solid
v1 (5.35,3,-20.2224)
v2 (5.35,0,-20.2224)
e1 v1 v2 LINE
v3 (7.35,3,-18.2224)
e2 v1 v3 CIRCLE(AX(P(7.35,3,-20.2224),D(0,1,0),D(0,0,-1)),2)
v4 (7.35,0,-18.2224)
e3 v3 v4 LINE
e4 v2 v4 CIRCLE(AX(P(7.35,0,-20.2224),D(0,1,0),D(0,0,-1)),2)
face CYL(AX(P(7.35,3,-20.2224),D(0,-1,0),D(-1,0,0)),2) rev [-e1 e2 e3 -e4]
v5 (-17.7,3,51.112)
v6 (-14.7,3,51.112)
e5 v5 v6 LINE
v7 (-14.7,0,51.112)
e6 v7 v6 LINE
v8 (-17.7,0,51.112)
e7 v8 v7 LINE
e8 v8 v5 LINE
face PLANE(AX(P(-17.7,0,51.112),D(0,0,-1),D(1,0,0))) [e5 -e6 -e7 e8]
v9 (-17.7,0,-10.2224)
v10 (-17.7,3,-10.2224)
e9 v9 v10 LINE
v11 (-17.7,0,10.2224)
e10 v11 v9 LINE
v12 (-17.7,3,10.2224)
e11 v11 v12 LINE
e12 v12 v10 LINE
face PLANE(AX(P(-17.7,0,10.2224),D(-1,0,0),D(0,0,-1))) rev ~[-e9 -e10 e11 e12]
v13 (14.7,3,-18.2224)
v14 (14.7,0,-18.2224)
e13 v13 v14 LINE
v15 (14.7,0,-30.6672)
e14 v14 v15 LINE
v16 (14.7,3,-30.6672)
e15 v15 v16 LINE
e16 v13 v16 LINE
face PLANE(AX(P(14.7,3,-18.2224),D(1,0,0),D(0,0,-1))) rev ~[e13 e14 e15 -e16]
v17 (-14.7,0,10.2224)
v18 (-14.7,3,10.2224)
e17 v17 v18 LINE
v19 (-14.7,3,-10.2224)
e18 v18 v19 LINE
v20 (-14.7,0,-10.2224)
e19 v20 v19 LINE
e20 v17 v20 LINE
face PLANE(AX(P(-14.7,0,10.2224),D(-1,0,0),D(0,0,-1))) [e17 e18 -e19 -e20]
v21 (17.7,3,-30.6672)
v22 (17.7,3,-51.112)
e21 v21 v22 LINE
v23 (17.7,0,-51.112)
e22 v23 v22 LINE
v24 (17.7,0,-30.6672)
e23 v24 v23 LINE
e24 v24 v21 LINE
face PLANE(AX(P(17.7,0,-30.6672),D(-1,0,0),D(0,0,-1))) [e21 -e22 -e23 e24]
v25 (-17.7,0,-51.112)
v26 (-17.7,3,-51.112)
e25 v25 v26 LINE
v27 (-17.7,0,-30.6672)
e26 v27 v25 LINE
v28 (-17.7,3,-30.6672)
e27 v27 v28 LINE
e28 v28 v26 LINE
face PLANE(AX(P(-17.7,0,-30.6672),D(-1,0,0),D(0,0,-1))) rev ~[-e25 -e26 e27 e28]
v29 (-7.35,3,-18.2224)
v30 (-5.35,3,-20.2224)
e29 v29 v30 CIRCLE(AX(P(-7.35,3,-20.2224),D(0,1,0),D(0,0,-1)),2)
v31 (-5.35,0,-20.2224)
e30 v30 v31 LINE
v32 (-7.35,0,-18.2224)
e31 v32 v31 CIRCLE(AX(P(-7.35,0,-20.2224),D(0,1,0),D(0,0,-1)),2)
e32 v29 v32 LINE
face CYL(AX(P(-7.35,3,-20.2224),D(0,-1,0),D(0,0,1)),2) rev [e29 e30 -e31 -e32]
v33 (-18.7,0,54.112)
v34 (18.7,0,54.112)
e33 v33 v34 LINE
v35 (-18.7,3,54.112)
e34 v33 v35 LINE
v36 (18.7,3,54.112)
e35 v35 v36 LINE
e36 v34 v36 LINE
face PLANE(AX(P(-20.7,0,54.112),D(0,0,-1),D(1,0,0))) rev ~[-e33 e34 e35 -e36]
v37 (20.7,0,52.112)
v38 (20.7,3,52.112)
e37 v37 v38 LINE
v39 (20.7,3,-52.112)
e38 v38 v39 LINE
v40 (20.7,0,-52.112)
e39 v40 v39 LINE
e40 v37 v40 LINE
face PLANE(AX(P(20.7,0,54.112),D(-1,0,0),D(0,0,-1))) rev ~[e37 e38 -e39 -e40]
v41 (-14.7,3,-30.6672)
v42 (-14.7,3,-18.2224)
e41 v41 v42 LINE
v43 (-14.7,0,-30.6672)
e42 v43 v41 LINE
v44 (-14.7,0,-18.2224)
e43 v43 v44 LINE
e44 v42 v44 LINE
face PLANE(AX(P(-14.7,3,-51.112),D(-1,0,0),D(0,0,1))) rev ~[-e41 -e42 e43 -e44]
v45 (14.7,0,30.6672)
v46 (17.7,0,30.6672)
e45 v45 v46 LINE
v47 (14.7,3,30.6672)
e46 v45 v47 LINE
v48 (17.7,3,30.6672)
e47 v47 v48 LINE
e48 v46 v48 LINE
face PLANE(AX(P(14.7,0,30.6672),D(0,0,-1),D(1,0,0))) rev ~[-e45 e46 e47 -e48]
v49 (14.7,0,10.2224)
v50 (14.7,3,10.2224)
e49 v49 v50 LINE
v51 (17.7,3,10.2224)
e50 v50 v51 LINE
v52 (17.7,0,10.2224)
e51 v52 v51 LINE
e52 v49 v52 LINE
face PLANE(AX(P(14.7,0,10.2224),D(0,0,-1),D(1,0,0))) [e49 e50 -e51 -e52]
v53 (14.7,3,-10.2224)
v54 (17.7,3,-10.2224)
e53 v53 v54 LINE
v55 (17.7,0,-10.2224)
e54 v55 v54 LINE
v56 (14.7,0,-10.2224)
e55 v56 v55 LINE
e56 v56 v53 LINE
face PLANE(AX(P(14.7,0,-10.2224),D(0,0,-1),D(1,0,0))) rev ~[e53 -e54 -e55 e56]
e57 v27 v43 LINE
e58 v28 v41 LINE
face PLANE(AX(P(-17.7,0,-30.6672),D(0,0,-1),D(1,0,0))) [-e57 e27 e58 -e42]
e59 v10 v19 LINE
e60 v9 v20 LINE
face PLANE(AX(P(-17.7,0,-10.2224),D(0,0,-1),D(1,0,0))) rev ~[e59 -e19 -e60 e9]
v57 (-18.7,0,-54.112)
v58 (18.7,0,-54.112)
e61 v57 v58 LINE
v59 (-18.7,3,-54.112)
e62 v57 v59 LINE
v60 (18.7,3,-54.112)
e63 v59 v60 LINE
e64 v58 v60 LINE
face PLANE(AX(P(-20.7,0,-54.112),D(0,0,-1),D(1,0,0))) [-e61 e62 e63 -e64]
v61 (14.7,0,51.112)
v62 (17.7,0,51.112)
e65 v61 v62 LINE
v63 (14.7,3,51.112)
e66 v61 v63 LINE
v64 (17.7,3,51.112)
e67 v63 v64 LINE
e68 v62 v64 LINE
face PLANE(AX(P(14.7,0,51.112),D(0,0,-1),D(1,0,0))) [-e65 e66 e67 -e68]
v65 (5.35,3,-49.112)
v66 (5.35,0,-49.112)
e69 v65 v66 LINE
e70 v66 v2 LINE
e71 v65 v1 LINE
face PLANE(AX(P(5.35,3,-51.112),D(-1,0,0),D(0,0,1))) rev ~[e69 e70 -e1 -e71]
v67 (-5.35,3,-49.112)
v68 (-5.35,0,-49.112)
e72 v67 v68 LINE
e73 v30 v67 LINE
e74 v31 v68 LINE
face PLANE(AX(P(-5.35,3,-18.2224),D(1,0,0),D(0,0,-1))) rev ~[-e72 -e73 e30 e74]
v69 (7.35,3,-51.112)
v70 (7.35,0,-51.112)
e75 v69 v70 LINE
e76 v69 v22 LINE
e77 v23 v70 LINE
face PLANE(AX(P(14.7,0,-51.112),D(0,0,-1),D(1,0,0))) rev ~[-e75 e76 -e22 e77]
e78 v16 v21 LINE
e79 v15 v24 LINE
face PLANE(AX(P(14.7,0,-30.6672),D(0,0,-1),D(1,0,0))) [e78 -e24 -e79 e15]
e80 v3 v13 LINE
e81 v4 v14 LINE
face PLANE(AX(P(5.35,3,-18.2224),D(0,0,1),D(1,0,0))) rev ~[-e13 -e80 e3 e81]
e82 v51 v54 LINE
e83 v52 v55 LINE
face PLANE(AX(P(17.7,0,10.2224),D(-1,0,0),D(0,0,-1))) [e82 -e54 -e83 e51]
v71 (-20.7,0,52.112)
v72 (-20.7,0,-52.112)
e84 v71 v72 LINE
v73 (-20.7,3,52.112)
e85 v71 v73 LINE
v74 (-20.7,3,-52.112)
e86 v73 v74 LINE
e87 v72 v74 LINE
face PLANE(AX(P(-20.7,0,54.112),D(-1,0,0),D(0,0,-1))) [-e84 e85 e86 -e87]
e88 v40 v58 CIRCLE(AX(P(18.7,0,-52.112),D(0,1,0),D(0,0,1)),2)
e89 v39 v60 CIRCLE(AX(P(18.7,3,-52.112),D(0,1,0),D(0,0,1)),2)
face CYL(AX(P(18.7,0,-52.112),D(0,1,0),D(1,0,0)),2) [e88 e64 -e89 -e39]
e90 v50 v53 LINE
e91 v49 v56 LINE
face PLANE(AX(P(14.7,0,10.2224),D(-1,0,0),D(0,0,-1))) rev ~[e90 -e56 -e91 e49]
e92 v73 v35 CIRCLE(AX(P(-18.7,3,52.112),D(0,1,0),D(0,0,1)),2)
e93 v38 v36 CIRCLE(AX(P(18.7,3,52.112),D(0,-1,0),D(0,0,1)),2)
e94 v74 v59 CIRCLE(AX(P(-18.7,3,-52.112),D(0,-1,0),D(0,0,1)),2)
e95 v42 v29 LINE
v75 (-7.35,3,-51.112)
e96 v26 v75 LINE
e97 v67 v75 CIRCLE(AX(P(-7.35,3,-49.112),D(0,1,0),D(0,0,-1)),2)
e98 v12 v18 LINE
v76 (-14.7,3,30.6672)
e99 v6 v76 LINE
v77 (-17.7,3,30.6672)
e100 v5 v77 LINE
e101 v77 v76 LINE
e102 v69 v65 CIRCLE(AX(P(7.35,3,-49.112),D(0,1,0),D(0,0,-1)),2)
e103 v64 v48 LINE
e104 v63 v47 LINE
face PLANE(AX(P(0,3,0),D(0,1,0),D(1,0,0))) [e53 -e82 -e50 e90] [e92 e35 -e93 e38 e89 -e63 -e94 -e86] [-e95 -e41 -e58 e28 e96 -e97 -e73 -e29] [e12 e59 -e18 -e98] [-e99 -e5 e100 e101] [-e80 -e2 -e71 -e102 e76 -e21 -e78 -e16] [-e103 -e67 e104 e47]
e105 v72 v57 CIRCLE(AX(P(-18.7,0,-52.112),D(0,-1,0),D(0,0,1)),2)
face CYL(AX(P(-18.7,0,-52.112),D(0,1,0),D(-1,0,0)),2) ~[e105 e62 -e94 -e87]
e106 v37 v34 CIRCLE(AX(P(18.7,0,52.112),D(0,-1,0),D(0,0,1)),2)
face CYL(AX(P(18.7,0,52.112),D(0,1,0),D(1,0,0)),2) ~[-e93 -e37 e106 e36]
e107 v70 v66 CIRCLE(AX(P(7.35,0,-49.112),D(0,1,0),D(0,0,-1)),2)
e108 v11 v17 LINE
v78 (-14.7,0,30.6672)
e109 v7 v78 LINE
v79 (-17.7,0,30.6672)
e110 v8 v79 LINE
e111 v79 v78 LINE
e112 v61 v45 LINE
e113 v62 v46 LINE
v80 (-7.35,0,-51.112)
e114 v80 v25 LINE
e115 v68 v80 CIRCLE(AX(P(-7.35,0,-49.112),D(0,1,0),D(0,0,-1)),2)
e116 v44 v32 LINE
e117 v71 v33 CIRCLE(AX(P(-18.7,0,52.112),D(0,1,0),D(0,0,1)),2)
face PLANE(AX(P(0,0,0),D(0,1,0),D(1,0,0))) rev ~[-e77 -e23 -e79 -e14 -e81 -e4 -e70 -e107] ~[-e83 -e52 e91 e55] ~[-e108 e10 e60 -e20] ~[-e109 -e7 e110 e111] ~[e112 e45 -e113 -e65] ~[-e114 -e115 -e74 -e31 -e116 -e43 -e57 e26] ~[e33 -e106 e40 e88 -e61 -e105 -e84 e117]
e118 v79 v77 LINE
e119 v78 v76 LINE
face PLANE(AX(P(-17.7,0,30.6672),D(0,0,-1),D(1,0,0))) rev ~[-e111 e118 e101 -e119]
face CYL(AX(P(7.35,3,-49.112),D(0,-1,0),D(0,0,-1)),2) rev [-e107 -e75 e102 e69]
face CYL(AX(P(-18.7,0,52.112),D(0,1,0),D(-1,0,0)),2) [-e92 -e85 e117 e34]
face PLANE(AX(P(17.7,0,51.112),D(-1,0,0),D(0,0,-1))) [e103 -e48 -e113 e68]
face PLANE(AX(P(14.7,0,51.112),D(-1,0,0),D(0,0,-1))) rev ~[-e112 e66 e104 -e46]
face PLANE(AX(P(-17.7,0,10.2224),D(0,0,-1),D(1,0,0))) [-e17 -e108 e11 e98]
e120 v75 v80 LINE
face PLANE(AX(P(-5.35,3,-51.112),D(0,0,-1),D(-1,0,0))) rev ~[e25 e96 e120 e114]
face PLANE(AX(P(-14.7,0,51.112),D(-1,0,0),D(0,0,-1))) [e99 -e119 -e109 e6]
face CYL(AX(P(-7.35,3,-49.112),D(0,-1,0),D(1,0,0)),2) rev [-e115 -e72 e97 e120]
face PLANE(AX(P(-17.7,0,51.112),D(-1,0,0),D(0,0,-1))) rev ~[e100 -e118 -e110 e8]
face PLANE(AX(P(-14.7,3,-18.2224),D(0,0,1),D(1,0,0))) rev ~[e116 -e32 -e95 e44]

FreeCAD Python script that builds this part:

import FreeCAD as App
import Part
import Sketcher

V = App.Vector
Q = App.Units.Quantity


def edges_at(feature, points):
    """Names of the edges that pass closest to the given points."""
    edges = feature.Shape.Edges
    near = lambda p: min(range(len(edges)), key=lambda i: edges[i].distToShape(Part.Vertex(*p))[0])
    return sorted({f"Edge{near(p) + 1}" for p in points})

doc = App.newDocument("Part")
params = doc.addObject("Spreadsheet::Sheet", "Params")
for row, (alias, value) in enumerate([
    ("sketch1_width", "3 mm"),
    ("sketch1_width2", "41.4 mm"),
    ("pad1_length", "3 mm"),
    ("sketch2_width", "9.35 mm"),
    ("fillet_radius", "2 mm"),
], start=1):
    params.set(f"A{row}", alias)
    params.set(f"B{row}", "=" + value)
    params.setAlias(f"B{row}", alias)

body = doc.addObject("PartDesign::Body", "Body")

# Sketch on XZ plane
sketch1 = body.newObject("Sketcher::SketchObject", "Sketch")
sketch1.AttachmentSupport = (doc.getObject("XZ_Plane"), [""])
sketch1.MapMode = "FlatFace"
sketch1.addGeometry([
    Part.LineSegment(V(-20.7, -54.1, 0), V(-20.7, 54.1, 0)),  # 0
    Part.LineSegment(V(-20.7, 54.1, 0), V(20.7, 54.1, 0)),  # 1
    Part.LineSegment(V(20.7, 54.1, 0), V(20.7, -54.1, 0)),  # 2
    Part.LineSegment(V(20.7, -54.1, 0), V(-20.7, -54.1, 0)),  # 3
    Part.LineSegment(V(-14.7, 51.1, 0), V(-17.7, 51.1, 0)),  # 4
    Part.LineSegment(V(-17.7, 51.1, 0), V(-17.7, 30.7, 0)),  # 5
    Part.LineSegment(V(-17.7, 30.7, 0), V(-14.7, 30.7, 0)),  # 6
    Part.LineSegment(V(-14.7, 30.7, 0), V(-14.7, 51.1, 0)),  # 7
    Part.LineSegment(V(17.7, 51.1, 0), V(14.7, 51.1, 0)),  # 8
    Part.LineSegment(V(14.7, 51.1, 0), V(14.7, 30.7, 0)),  # 9
    Part.LineSegment(V(14.7, 30.7, 0), V(17.7, 30.7, 0)),  # 10
    Part.LineSegment(V(17.7, 30.7, 0), V(17.7, 51.1, 0)),  # 11
    Part.LineSegment(V(-14.7, 10.2, 0), V(-17.7, 10.2, 0)),  # 12
    Part.LineSegment(V(-17.7, 10.2, 0), V(-17.7, -10.2, 0)),  # 13
    Part.LineSegment(V(-17.7, -10.2, 0), V(-14.7, -10.2, 0)),  # 14
    Part.LineSegment(V(-14.7, -10.2, 0), V(-14.7, 10.2, 0)),  # 15
    Part.LineSegment(V(-14.7, -30.7, 0), V(-17.7, -30.7, 0)),  # 16
    Part.LineSegment(V(-17.7, -30.7, 0), V(-17.7, -51.1, 0)),  # 17
    Part.LineSegment(V(-17.7, -51.1, 0), V(-14.7, -51.1, 0)),  # 18
    Part.LineSegment(V(-14.7, -51.1, 0), V(-14.7, -30.7, 0)),  # 19
    Part.LineSegment(V(17.7, 10.2, 0), V(14.7, 10.2, 0)),  # 20
    Part.LineSegment(V(14.7, 10.2, 0), V(14.7, -10.2, 0)),  # 21
    Part.LineSegment(V(14.7, -10.2, 0), V(17.7, -10.2, 0)),  # 22
    Part.LineSegment(V(17.7, -10.2, 0), V(17.7, 10.2, 0)),  # 23
    Part.LineSegment(V(17.7, -30.7, 0), V(14.7, -30.7, 0)),  # 24
    Part.LineSegment(V(14.7, -30.7, 0), V(14.7, -51.1, 0)),  # 25
    Part.LineSegment(V(14.7, -51.1, 0), V(17.7, -51.1, 0)),  # 26
    Part.LineSegment(V(17.7, -51.1, 0), V(17.7, -30.7, 0)),  # 27
], False)
sketch1.addConstraint([
    Sketcher.Constraint("Coincident", 0, 2, 1, 1),
    Sketcher.Constraint("Coincident", 1, 2, 2, 1),
    Sketcher.Constraint("Coincident", 2, 2, 3, 1),
    Sketcher.Constraint("Coincident", 3, 2, 0, 1),
    Sketcher.Constraint("Coincident", 4, 2, 5, 1),
    Sketcher.Constraint("Coincident", 5, 2, 6, 1),
    Sketcher.Constraint("Coincident", 6, 2, 7, 1),
    Sketcher.Constraint("Coincident", 7, 2, 4, 1),
    Sketcher.Constraint("Coincident", 8, 2, 9, 1),
    Sketcher.Constraint("Coincident", 9, 2, 10, 1),
    Sketcher.Constraint("Coincident", 10, 2, 11, 1),
    Sketcher.Constraint("Coincident", 11, 2, 8, 1),
    Sketcher.Constraint("Coincident", 12, 2, 13, 1),
    Sketcher.Constraint("Coincident", 13, 2, 14, 1),
    Sketcher.Constraint("Coincident", 14, 2, 15, 1),
    Sketcher.Constraint("Coincident", 15, 2, 12, 1),
    Sketcher.Constraint("Coincident", 16, 2, 17, 1),
    Sketcher.Constraint("Coincident", 17, 2, 18, 1),
    Sketcher.Constraint("Coincident", 18, 2, 19, 1),
    Sketcher.Constraint("Coincident", 19, 2, 16, 1),
    Sketcher.Constraint("Coincident", 20, 2, 21, 1),
    Sketcher.Constraint("Coincident", 21, 2, 22, 1),
    Sketcher.Constraint("Coincident", 22, 2, 23, 1),
    Sketcher.Constraint("Coincident", 23, 2, 20, 1),
    Sketcher.Constraint("Coincident", 24, 2, 25, 1),
    Sketcher.Constraint("Coincident", 25, 2, 26, 1),
    Sketcher.Constraint("Coincident", 26, 2, 27, 1),
    Sketcher.Constraint("Coincident", 27, 2, 24, 1),
    Sketcher.Constraint("Vertical", 0),
    Sketcher.Constraint("Horizontal", 1),
    Sketcher.Constraint("Vertical", 2),
    Sketcher.Constraint("Horizontal", 3),
    Sketcher.Constraint("Horizontal", 4),
    Sketcher.Constraint("Vertical", 5),
    Sketcher.Constraint("Horizontal", 6),
    Sketcher.Constraint("Vertical", 7),
    Sketcher.Constraint("Horizontal", 8),
    Sketcher.Constraint("Vertical", 9),
    Sketcher.Constraint("Horizontal", 10),
    Sketcher.Constraint("Vertical", 11),
    Sketcher.Constraint("Horizontal", 12),
    Sketcher.Constraint("Vertical", 13),
    Sketcher.Constraint("Horizontal", 14),
    Sketcher.Constraint("Vertical", 15),
    Sketcher.Constraint("Horizontal", 16),
    Sketcher.Constraint("Vertical", 17),
    Sketcher.Constraint("Horizontal", 18),
    Sketcher.Constraint("Vertical", 19),
    Sketcher.Constraint("Horizontal", 20),
    Sketcher.Constraint("Vertical", 21),
    Sketcher.Constraint("Horizontal", 22),
    Sketcher.Constraint("Vertical", 23),
    Sketcher.Constraint("Horizontal", 24),
    Sketcher.Constraint("Vertical", 25),
    Sketcher.Constraint("Horizontal", 26),
    Sketcher.Constraint("Vertical", 27),
    Sketcher.Constraint("Symmetric", 0, 2, 2, 2, -1, 1),
    Sketcher.Constraint("Symmetric", 10, 2, 16, 2, -1, 1),
    Sketcher.Constraint("Symmetric", 8, 2, 18, 2, -1, 1),
    Sketcher.Constraint("Symmetric", 14, 2, 20, 2, -1, 1),
    Sketcher.Constraint("Symmetric", 12, 2, 22, 2, -1, 1),
    Sketcher.Constraint("Symmetric", 6, 2, 24, 2, -1, 1),
    Sketcher.Constraint("Symmetric", 4, 2, 26, 2, -1, 1),
    Sketcher.Constraint("Symmetric", 7, 2, 8, 2, -2),
    Sketcher.Constraint("Symmetric", 5, 2, 10, 2, -2),
    Sketcher.Constraint("Horizontal", 15, 2, 20, 2),
    Sketcher.Constraint("Vertical", 5, 2, 12, 2),
    Sketcher.Constraint("Vertical", 7, 2, 14, 2),
    Sketcher.Constraint("Equal", 11, 13),
    Sketcher.Constraint("DistanceX", 4, 2, 4, 1, Q("3 mm")),
    Sketcher.Constraint("DistanceX", 1, 1, 1, 2, Q("41.4 mm")),
    Sketcher.Constraint("DistanceX", 0, 2, 4, 2, Q("3 mm")),
    Sketcher.Constraint("DistanceY", 4, 2, 0, 2, Q("3 mm")),
    Sketcher.Constraint("DistanceY", 0, 1, 0, 2, Q("108.224 mm")),
    Sketcher.Constraint("DistanceY", 5, 2, 5, 1, Q("20.4448 mm")),
])
sketch1.setExpression("Constraints[69]", "Params.sketch1_width")
sketch1.setExpression("Constraints[70]", "Params.sketch1_width2")
pad1 = body.newObject("PartDesign::Pad", "Pad")
pad1.Profile = sketch1
pad1.setExpression("Length", "Params.pad1_length")
pad1.Reversed = True

# Sketch on XZ plane
sketch2 = body.newObject("Sketcher::SketchObject", "Sketch001")
sketch2.AttachmentSupport = (doc.getObject("XZ_Plane"), [""])
sketch2.MapMode = "FlatFace"
sketch2.AttachmentOffset = App.Placement(V(0, 0, -3), App.Rotation())
sketch2.addGeometry([
    Part.LineSegment(V(-5, -51, 0), V(-15, -51, 0)),  # 0
    Part.LineSegment(V(-15, -51, 0), V(-15, -18, 0)),  # 1
    Part.LineSegment(V(-15, -18, 0), V(-5, -18, 0)),  # 2
    Part.LineSegment(V(-5, -18, 0), V(-5, -51, 0)),  # 3
    Part.LineSegment(V(15, -51, 0), V(5, -51, 0)),  # 4
    Part.LineSegment(V(5, -51, 0), V(5, -18, 0)),  # 5
    Part.LineSegment(V(5, -18, 0), V(15, -18, 0)),  # 6
    Part.LineSegment(V(15, -18, 0), V(15, -51, 0)),  # 7
], False)
sketch2.addConstraint([
    Sketcher.Constraint("Coincident", 0, 2, 1, 1),
    Sketcher.Constraint("Coincident", 1, 2, 2, 1),
    Sketcher.Constraint("Coincident", 2, 2, 3, 1),
    Sketcher.Constraint("Coincident", 3, 2, 0, 1),
    Sketcher.Constraint("Coincident", 4, 2, 5, 1),
    Sketcher.Constraint("Coincident", 5, 2, 6, 1),
    Sketcher.Constraint("Coincident", 6, 2, 7, 1),
    Sketcher.Constraint("Coincident", 7, 2, 4, 1),
    Sketcher.Constraint("Horizontal", 0),
    Sketcher.Constraint("Vertical", 1),
    Sketcher.Constraint("Horizontal", 2),
    Sketcher.Constraint("Vertical", 3),
    Sketcher.Constraint("Horizontal", 4),
    Sketcher.Constraint("Vertical", 5),
    Sketcher.Constraint("Horizontal", 6),
    Sketcher.Constraint("Vertical", 7),
    Sketcher.Constraint("Symmetric", 3, 2, 4, 2, -2),
    Sketcher.Constraint("Symmetric", 1, 2, 6, 2, -2),
    Sketcher.Constraint("DistanceX", 0, 2, 0, 1, Q("9.35 mm")),
    Sketcher.Constraint("DistanceX", 0, 2, -1, 1, Q("14.7 mm")),
    Sketcher.Constraint("DistanceY", 1, 1, 1, 2, Q("32.8896 mm")),
    Sketcher.Constraint("DistanceY", 0, 2, -1, 1, Q("51.112 mm")),
])
sketch2.setExpression("Constraints[18]", "Params.sketch2_width")
pocket1 = body.newObject("PartDesign::Pocket", "Pocket")
pocket1.Profile = sketch2
pocket1.Type = "ThroughAll"
pocket1.Midplane = True
doc.recompute()

fillet = body.newObject("PartDesign::Fillet", "Fillet")
fillet.Base = (pocket1, edges_at(pocket1, [
    (-5.35, 1.5, -18.222),
    (-5.35, 1.5, -51.112),
    (5.35, 1.5, -18.222),
    (5.35, 1.5, -51.112),
    (20.7, 1.5, 54.112),
    (-20.7, 1.5, 54.112),
    (-20.7, 1.5, -54.112),
    (20.7, 1.5, -54.112),
]))
fillet.setExpression("Radius", "Params.fillet_radius")

doc.recompute()
